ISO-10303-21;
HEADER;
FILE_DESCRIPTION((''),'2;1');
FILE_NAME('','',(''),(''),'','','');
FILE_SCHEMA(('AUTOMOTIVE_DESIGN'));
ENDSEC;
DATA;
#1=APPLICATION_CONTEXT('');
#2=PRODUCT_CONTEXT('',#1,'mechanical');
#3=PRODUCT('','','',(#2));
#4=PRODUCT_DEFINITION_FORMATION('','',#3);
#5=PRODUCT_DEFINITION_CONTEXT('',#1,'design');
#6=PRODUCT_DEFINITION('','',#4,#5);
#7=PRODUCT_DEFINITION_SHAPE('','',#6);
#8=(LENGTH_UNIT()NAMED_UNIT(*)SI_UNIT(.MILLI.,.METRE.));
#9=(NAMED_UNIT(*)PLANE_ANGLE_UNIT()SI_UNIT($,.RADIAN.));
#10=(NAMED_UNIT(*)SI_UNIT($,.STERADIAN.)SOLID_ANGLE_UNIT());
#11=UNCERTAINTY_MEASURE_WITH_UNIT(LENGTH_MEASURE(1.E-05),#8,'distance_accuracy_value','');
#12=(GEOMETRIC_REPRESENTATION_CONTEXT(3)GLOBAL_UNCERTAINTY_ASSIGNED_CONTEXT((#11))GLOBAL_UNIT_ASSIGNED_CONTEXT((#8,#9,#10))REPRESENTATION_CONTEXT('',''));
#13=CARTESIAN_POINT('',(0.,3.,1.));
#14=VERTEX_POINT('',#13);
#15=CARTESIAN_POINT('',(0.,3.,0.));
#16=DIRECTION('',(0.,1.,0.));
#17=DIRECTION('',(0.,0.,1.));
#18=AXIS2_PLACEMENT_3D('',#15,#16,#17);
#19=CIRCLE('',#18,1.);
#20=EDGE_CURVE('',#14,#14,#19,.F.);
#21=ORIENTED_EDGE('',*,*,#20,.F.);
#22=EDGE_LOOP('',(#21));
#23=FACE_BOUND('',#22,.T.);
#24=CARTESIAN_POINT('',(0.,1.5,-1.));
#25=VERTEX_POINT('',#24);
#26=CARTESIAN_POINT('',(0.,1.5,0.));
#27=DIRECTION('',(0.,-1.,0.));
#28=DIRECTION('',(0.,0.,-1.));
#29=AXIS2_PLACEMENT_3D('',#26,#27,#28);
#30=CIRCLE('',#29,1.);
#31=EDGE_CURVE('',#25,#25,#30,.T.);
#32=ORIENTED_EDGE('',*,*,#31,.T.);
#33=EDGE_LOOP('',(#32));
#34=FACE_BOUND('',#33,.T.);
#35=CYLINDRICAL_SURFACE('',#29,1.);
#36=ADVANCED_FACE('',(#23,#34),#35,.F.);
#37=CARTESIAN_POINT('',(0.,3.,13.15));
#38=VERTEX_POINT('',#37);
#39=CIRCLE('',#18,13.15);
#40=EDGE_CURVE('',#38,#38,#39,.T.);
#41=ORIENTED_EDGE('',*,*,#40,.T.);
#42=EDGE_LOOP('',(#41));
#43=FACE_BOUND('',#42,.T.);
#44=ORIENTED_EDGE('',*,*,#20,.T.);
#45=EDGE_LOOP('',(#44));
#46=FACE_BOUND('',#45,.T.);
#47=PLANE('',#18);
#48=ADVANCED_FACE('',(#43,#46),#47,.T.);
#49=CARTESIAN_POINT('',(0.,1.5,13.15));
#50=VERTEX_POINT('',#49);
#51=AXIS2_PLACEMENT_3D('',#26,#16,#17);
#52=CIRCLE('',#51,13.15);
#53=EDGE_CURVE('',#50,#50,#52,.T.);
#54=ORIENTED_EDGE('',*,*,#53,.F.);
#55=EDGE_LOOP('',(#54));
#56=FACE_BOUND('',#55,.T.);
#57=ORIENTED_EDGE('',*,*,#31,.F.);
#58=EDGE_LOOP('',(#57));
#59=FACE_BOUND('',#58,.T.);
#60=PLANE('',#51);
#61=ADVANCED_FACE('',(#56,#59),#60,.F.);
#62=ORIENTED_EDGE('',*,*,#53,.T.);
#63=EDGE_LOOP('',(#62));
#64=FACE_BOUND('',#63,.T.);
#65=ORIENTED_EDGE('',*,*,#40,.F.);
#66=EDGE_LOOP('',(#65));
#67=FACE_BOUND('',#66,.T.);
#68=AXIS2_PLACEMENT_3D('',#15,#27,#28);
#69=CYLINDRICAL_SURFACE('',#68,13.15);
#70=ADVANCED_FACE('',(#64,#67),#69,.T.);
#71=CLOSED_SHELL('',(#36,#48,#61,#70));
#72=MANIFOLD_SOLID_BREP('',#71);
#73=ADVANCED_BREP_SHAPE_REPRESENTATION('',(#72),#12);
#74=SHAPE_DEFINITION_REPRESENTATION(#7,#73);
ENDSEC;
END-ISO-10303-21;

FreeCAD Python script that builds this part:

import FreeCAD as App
import Part
import Sketcher
Q = App.Units.Quantity

doc = App.newDocument("Part")
body = doc.addObject("PartDesign::Body", "Body")

# Sketch on XZ plane
sketch1 = body.newObject("Sketcher::SketchObject", "Sketch")
sketch1.AttachmentSupport = (doc.getObject("XZ_Plane"), [""])
sketch1.MapMode = "FlatFace"
sketch1.addGeometry(Part.Circle(App.Vector(0, 0, 0), App.Vector(0, 0, 1), 10.5), False)
sketch1.addGeometry(Part.Circle(App.Vector(0, 0, 0), App.Vector(0, 0, 1), 1), False)
sketch1.addConstraint(Sketcher.Constraint("Coincident", 0, 3, -1, 1))
sketch1.addConstraint(Sketcher.Constraint("Coincident", 1, 3, -1, 1))
sketch1.addConstraint(Sketcher.Constraint("Diameter", 0, Q("21 mm")))
sketch1.addConstraint(Sketcher.Constraint("Diameter", 1, Q("2 mm")))
pad1 = body.newObject("PartDesign::Pad", "Pad")
pad1.Profile = sketch1
pad1.Length = 1.5
pad1.Reversed = True

# Sketch on XZ plane
sketch2 = body.newObject("Sketcher::SketchObject", "Sketch001")
sketch2.AttachmentSupport = (doc.getObject("XZ_Plane"), [""])
sketch2.MapMode = "FlatFace"
sketch2.AttachmentOffset = App.Placement(App.Vector(0, 0, -1.5), App.Rotation())
sketch2.addGeometry(Part.Circle(App.Vector(0, 0, 0), App.Vector(0, 0, 1), 13.15), False)
sketch2.addGeometry(Part.Circle(App.Vector(0, 0, 0), App.Vector(0, 0, 1), 1), False)
sketch2.addConstraint(Sketcher.Constraint("Coincident", 0, 3, -1, 1))
sketch2.addConstraint(Sketcher.Constraint("Coincident", 1, 3, -1, 1))
sketch2.addConstraint(Sketcher.Constraint("Diameter", 1, Q("2 mm")))
sketch2.addConstraint(Sketcher.Constraint("Diameter", 0, Q("26.3 mm")))
pad2 = body.newObject("PartDesign::Pad", "Pad001")
pad2.Profile = sketch2
pad2.Length = 1.5
pad2.Reversed = True

# Sketch on XZ plane
sketch3 = body.newObject("Sketcher::SketchObject", "Sketch002")
sketch3.AttachmentSupport = (doc.getObject("XZ_Plane"), [""])
sketch3.MapMode = "FlatFace"
sketch3.addGeometry(Part.Circle(App.Vector(0, 0, 0), App.Vector(0, 0, 1), 10.5), False)
sketch3.addConstraint(Sketcher.Constraint("Coincident", 0, 3, -1, 1))
sketch3.addConstraint(Sketcher.Constraint("Diameter", 0, Q("21 mm")))
pocket1 = body.newObject("PartDesign::Pocket", "Pocket")
pocket1.Profile = sketch3
pocket1.Length = 1.5

doc.recompute()
